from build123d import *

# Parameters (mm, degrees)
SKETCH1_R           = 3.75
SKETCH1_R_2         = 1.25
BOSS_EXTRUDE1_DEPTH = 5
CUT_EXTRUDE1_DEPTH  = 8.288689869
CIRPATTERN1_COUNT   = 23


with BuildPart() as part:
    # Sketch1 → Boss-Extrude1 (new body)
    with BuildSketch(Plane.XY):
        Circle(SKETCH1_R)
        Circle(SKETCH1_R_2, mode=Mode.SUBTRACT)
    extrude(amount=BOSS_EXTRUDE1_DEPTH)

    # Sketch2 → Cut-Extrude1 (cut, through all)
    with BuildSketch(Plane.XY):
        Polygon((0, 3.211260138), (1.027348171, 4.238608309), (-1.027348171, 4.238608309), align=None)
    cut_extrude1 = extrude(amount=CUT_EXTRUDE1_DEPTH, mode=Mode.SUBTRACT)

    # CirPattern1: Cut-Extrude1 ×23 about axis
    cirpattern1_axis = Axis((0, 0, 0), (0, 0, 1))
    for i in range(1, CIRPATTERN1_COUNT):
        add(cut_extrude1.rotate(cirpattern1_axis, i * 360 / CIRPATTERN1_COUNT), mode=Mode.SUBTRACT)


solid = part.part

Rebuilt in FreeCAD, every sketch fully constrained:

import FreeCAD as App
import Part
import Sketcher
from FreeCAD import Vector


def add_polygon(sketch, points):
    """Adds a closed chain of lines whose ends are joined by coincident constraints."""
    first, n = sketch.GeometryCount, len(points)
    for a, b in zip(points, points[1:] + points[:1]):
        sketch.addGeometry(Part.LineSegment(App.Vector(*a, 0), App.Vector(*b, 0)), False)
    for i in range(n):
        sketch.addConstraint(Sketcher.Constraint("Coincident", first + i, 2, first + (i + 1) % n, 1))

doc = App.newDocument("Part")
params = doc.addObject("Spreadsheet::Sheet", "Params")
for row, (alias, value) in enumerate([
    ("sketch1_diameter", "7.5 mm"),
    ("sketch1_diameter2", "2.5 mm"),
    ("pad1_length", "5 mm"),
], start=1):
    params.set(f"A{row}", alias)
    params.set(f"B{row}", "=" + value)
    params.setAlias(f"B{row}", alias)

body = doc.addObject("PartDesign::Body", "Body")

# Sketch on XY plane
sketch1 = doc.addObject("Sketcher::SketchObject", "Sketch")
body.addObject(sketch1)
sketch1.AttachmentSupport = (doc.XY_Plane, [""])
sketch1.MapMode = "FlatFace"
sketch1.addGeometry(Part.Circle(Vector(0, 0, 0), Vector(0, 0, 1), 3.8), False)
sketch1.addGeometry(Part.Circle(Vector(0, 0, 0), Vector(0, 0, 1), 1.2), False)
sketch1.addConstraint(Sketcher.Constraint("Coincident", 0, 3, -1, 1))
sketch1.addConstraint(Sketcher.Constraint("Coincident", 1, 3, -1, 1))
sketch1.addConstraint(Sketcher.Constraint("Diameter", 0, 7.5))
sketch1.addConstraint(Sketcher.Constraint("Diameter", 1, 2.5))
sketch1.setExpression("Constraints[2]", "Params.sketch1_diameter")
sketch1.setExpression("Constraints[3]", "Params.sketch1_diameter2")
pad1 = doc.addObject("PartDesign::Pad", "Pad")
body.addObject(pad1)
pad1.Profile = sketch1
pad1.setExpression("Length", "Params.pad1_length")

# Sketch on XY plane
sketch2 = doc.addObject("Sketcher::SketchObject", "Sketch001")
body.addObject(sketch2)
sketch2.AttachmentSupport = (doc.XY_Plane, [""])
sketch2.MapMode = "FlatFace"
add_polygon(sketch2, [(0, 3.2), (1, 4.2), (-1, 4.2)])  # lines 0-2
sketch2.addConstraint(Sketcher.Constraint("Horizontal", 1))
sketch2.addConstraint(Sketcher.Constraint("PointOnObject", 2, 2, -2))
sketch2.addConstraint(Sketcher.Constraint("Perpendicular", 0, 2))
sketch2.addConstraint(Sketcher.Constraint("Equal", 0, 2))
sketch2.addConstraint(Sketcher.Constraint("Distance", 0, 1.45289))
sketch2.addConstraint(Sketcher.Constraint("DistanceY", -1, 1, 0, 2, 4.238608))
pocket1 = doc.addObject("PartDesign::Pocket", "Pocket")
body.addObject(pocket1)
pocket1.Profile = sketch2
pocket1.Type = "ThroughAll"
pocket1.Reversed = True
doc.recompute()

polarpattern = doc.addObject("PartDesign::PolarPattern", "PolarPattern")
body.addObject(polarpattern)
polarpattern.Originals = [pocket1]
polarpattern.Axis = (doc.Z_Axis, [""])
polarpattern.Angle = 360
polarpattern.Occurrences = 23
body.Tip = polarpattern

doc.recompute()
